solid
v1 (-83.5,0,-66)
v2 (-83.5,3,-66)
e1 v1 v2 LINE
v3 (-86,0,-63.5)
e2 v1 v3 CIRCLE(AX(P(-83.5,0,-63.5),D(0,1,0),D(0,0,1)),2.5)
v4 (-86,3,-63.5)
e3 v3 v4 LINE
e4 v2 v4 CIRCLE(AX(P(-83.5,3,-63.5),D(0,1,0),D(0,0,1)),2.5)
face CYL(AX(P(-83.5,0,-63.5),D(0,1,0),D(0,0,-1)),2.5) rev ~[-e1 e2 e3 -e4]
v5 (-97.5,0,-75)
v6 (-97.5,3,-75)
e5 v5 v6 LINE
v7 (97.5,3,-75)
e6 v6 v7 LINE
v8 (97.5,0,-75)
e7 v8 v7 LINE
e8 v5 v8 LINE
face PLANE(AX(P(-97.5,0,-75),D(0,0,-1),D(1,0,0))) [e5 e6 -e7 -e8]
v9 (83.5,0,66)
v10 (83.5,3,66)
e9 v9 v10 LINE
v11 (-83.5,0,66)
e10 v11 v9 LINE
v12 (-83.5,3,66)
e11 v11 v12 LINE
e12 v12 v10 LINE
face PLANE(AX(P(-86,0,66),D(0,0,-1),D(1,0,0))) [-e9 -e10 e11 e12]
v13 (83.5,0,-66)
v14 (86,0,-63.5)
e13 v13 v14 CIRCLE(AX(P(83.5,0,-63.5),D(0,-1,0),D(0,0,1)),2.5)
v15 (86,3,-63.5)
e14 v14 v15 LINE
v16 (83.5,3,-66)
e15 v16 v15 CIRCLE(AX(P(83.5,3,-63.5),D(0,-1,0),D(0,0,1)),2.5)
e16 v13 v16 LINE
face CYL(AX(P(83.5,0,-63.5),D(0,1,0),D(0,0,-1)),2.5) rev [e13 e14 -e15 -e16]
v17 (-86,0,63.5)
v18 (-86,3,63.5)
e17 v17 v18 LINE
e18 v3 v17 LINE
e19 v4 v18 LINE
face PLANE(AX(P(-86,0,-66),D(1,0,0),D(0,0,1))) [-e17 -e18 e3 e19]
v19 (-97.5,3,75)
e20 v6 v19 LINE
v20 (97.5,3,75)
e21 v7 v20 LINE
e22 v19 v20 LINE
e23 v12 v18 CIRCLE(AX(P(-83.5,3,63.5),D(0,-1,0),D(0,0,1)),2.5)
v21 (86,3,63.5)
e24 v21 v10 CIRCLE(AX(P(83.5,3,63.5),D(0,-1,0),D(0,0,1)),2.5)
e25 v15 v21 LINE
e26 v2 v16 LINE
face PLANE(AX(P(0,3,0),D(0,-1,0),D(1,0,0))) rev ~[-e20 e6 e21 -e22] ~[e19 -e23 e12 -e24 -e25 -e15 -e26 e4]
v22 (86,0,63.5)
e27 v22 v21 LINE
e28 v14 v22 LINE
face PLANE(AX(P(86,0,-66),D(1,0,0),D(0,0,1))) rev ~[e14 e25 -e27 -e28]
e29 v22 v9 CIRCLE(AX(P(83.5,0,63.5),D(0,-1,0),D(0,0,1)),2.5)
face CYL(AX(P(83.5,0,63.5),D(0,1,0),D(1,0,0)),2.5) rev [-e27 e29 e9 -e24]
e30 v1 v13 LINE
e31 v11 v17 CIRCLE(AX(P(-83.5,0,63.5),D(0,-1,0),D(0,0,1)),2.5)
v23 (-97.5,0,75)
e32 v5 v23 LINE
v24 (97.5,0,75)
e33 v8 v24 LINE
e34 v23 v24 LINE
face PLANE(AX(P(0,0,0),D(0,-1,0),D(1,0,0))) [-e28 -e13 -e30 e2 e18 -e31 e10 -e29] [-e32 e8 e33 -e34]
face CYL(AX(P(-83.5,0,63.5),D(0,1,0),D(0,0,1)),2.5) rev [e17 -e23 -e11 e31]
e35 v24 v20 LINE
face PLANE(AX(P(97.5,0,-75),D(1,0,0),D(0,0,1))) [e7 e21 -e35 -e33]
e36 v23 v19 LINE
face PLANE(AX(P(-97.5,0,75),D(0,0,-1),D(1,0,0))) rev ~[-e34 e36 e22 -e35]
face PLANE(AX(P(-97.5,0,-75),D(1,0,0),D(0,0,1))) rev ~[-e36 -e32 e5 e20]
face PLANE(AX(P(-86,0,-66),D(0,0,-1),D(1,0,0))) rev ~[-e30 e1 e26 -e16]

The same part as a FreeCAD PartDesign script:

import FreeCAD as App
import Part
import Sketcher


def edges_at(feature, points):
    """Names of the edges that pass closest to the given points."""
    edges = feature.Shape.Edges
    near = lambda p: min(range(len(edges)), key=lambda i: edges[i].distToShape(Part.Vertex(*p))[0])
    return sorted({f"Edge{near(p) + 1}" for p in points})

doc = App.newDocument("Part")
body = doc.addObject("PartDesign::Body", "Body")

# Sketch on XZ plane
sketch1 = doc.addObject("Sketcher::SketchObject", "Sketch")
body.addObject(sketch1)
sketch1.AttachmentSupport = (doc.XZ_Plane, [""])
sketch1.MapMode = "FlatFace"
sketch1.addGeometry([
    Part.LineSegment(App.Vector(-97.5, 75, 0), App.Vector(-97.5, -75, 0)),  # 0
    Part.LineSegment(App.Vector(-97.5, -75, 0), App.Vector(97.5, -75, 0)),  # 1
    Part.LineSegment(App.Vector(97.5, -75, 0), App.Vector(97.5, 75, 0)),  # 2
    Part.LineSegment(App.Vector(97.5, 75, 0), App.Vector(-97.5, 75, 0)),  # 3
    Part.LineSegment(App.Vector(86, -66, 0), App.Vector(-86, -66, 0)),  # 4
    Part.LineSegment(App.Vector(-86, -66, 0), App.Vector(-86, 66, 0)),  # 5
    Part.LineSegment(App.Vector(-86, 66, 0), App.Vector(86, 66, 0)),  # 6
    Part.LineSegment(App.Vector(86, 66, 0), App.Vector(86, -66, 0)),  # 7
], False)
sketch1.addConstraint([
    Sketcher.Constraint("Coincident", 0, 2, 1, 1),
    Sketcher.Constraint("Coincident", 1, 2, 2, 1),
    Sketcher.Constraint("Coincident", 2, 2, 3, 1),
    Sketcher.Constraint("Coincident", 3, 2, 0, 1),
    Sketcher.Constraint("Coincident", 4, 2, 5, 1),
    Sketcher.Constraint("Coincident", 5, 2, 6, 1),
    Sketcher.Constraint("Coincident", 6, 2, 7, 1),
    Sketcher.Constraint("Coincident", 7, 2, 4, 1),
    Sketcher.Constraint("Vertical", 0),
    Sketcher.Constraint("Horizontal", 1),
    Sketcher.Constraint("Vertical", 2),
    Sketcher.Constraint("Horizontal", 3),
    Sketcher.Constraint("Horizontal", 4),
    Sketcher.Constraint("Vertical", 5),
    Sketcher.Constraint("Horizontal", 6),
    Sketcher.Constraint("Vertical", 7),
    Sketcher.Constraint("Symmetric", 0, 2, 2, 2, -1, 1),
    Sketcher.Constraint("Symmetric", 4, 2, 6, 2, -1, 1),
    Sketcher.Constraint("DistanceX", 1, 1, 1, 2, 195.0),
    Sketcher.Constraint("DistanceX", 4, 2, 4, 1, 172.0),
    Sketcher.Constraint("DistanceY", 0, 2, 0, 1, 150.0),
    Sketcher.Constraint("DistanceY", 5, 1, 5, 2, 132.0),
])
pad1 = doc.addObject("PartDesign::Pad", "Pad")
body.addObject(pad1)
pad1.Profile = sketch1
pad1.Length = 3
pad1.Reversed = True
doc.recompute()

fillet = doc.addObject("PartDesign::Fillet", "Fillet")
body.addObject(fillet)
fillet.Base = (pad1, edges_at(pad1, [
    (-86, 1.5, -66),
    (86, 1.5, -66),
    (86, 1.5, 66),
    (-86, 1.5, 66),
]))
fillet.Radius = 2.5

doc.recompute()
